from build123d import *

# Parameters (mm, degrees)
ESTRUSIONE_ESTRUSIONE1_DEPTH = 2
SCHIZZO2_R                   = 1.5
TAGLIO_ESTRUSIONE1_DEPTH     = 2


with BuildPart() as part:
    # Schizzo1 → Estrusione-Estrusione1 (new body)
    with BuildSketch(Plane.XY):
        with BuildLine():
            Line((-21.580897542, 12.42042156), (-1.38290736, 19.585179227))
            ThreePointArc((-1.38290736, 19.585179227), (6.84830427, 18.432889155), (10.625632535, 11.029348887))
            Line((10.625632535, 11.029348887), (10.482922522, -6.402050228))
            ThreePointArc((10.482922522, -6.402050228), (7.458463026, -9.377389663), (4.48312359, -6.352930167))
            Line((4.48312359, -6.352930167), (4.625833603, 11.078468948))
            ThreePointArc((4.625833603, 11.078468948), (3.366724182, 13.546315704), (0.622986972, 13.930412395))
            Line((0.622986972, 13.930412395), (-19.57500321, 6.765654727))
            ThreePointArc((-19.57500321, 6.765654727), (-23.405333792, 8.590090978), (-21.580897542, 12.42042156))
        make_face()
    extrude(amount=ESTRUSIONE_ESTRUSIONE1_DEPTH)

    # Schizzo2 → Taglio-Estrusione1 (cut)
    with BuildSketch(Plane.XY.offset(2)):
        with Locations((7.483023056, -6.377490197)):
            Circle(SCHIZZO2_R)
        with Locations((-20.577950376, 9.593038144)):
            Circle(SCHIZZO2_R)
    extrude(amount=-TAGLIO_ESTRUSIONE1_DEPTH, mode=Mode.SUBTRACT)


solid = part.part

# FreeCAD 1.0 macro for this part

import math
import FreeCAD as App
import Part
import Sketcher
Q = App.Units.Quantity

doc = App.newDocument("Part")
body = doc.addObject("PartDesign::Body", "Body")

sketch1 = doc.addObject("Sketcher::SketchObject", "Sketch")
body.addObject(sketch1)
sketch1.AttachmentSupport = (doc.XY_Plane, [""])
sketch1.MapMode = "FlatFace"
sketch1.addGeometry([
    Part.LineSegment(App.Vector(-1.4, 19.6, 0), App.Vector(-21.6, 12.4, 0)),
    Part.ArcOfCircle(Part.Circle(App.Vector(-20.6, 9.6, 0), App.Vector(0, 0, 1), 3), math.radians(110), math.radians(290)),
    Part.LineSegment(App.Vector(-19.6, 6.8, 0), App.Vector(0.6, 13.9, 0)),
    Part.ArcOfCircle(Part.Circle(App.Vector(1.6, 11.1, 0), App.Vector(0, 0, 1), 3), math.radians(0), math.radians(110)),
    Part.LineSegment(App.Vector(4.6, 11.1, 0), App.Vector(4.5, -6.4, 0)),
    Part.ArcOfCircle(Part.Circle(App.Vector(7.5, -6.4, 0), App.Vector(0, 0, 1), 3), math.radians(180), math.radians(360)),
    Part.LineSegment(App.Vector(10.5, -6.4, 0), App.Vector(10.6, 11, 0)),
    Part.ArcOfCircle(Part.Circle(App.Vector(1.6, 11.1, 0), App.Vector(0, 0, 1), 9), math.radians(0), math.radians(110)),
], False)
sketch1.addConstraint([
    Sketcher.Constraint("Tangent", 0, 2, 1, 1),
    Sketcher.Constraint("Tangent", 1, 2, 2, 1),
    Sketcher.Constraint("Tangent", 2, 2, 3, 2),
    Sketcher.Constraint("Tangent", 3, 1, 4, 1),
    Sketcher.Constraint("Tangent", 4, 2, 5, 1),
    Sketcher.Constraint("Tangent", 5, 2, 6, 1),
    Sketcher.Constraint("Tangent", 6, 2, 7, 1),
    Sketcher.Constraint("Tangent", 7, 2, 0, 1),
    Sketcher.Constraint("Coincident", 7, 3, 3, 3),
    Sketcher.Constraint("Equal", 1, 3),
    Sketcher.Constraint("Equal", 3, 5),
    Sketcher.Constraint("Parallel", 0, 2),
    Sketcher.Constraint("Radius", 1, Q("3 mm")),
    Sketcher.Constraint("DistanceY", 4, 2, 3, 1, Q("17.431399 mm")),
    Sketcher.Constraint("Distance", 0, Q("21.431112 mm")),
    Sketcher.Constraint("DistanceX", 1, 3, -1, 1, Q("20.57795 mm")),
    Sketcher.Constraint("DistanceY", -1, 1, 1, 3, Q("9.593038 mm")),
    Sketcher.Constraint("DistanceY", -1, 1, 3, 3, Q("11.103029 mm")),
    Sketcher.Constraint("DistanceY", 5, 3, -1, 1, Q("6.37749 mm")),
])
pad1 = doc.addObject("PartDesign::Pad", "Pad")
body.addObject(pad1)
pad1.Profile = sketch1
pad1.Length = 2

sketch2 = doc.addObject("Sketcher::SketchObject", "Sketch001")
body.addObject(sketch2)
sketch2.AttachmentSupport = (doc.XY_Plane, [""])
sketch2.MapMode = "FlatFace"
sketch2.AttachmentOffset = App.Placement(App.Vector(0, 0, 2), App.Rotation())
sketch2.addGeometry([
    Part.Circle(App.Vector(7.5, -6.4, 0), App.Vector(0, 0, 1), 1.5),
    Part.Circle(App.Vector(-20.6, 9.6, 0), App.Vector(0, 0, 1), 1.5),
], False)
sketch2.addConstraint([
    Sketcher.Constraint("Equal", 0, 1),
    Sketcher.Constraint("Diameter", 0, Q("3 mm")),
    Sketcher.Constraint("DistanceY", 0, 3, -1, 1, Q("6.37749 mm")),
    Sketcher.Constraint("DistanceX", 1, 3, -1, 1, Q("20.57795 mm")),
    Sketcher.Constraint("DistanceY", -1, 1, 1, 3, Q("9.593038 mm")),
    Sketcher.Constraint("DistanceX", -1, 1, 0, 3, Q("7.483023 mm")),
])
pocket1 = doc.addObject("PartDesign::Pocket", "Pocket")
body.addObject(pocket1)
pocket1.Profile = sketch2
pocket1.Length = 2

doc.recompute()
